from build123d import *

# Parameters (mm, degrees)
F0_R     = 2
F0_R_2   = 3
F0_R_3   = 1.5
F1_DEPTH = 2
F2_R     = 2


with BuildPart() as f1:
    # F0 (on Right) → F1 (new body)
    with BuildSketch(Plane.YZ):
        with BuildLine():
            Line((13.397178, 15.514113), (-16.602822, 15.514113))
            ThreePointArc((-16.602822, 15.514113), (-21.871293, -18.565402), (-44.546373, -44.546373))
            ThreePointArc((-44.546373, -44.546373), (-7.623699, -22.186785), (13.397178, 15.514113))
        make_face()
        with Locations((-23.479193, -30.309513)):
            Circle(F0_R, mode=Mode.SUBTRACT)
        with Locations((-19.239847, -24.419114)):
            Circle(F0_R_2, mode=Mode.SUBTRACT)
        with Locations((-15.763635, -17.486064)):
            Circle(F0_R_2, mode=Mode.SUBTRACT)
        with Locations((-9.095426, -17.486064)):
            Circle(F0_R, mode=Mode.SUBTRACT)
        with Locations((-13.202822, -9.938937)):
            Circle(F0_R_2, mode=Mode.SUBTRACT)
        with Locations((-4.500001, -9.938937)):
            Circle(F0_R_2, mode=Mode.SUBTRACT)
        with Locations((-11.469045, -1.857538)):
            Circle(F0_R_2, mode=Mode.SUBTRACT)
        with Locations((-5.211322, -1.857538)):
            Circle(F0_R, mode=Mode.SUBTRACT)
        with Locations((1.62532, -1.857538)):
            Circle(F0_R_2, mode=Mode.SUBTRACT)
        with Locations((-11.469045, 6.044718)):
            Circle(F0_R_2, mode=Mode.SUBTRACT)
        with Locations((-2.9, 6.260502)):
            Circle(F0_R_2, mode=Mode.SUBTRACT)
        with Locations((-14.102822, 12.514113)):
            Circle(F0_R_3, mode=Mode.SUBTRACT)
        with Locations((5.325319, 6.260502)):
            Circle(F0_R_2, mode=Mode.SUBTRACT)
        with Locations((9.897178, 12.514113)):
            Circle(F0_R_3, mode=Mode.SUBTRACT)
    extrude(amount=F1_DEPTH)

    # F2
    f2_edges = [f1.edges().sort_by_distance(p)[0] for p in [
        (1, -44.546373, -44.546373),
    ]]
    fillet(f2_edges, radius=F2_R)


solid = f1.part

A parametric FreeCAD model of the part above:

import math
import FreeCAD as App
import Part
import Sketcher

V = App.Vector
Q = App.Units.Quantity


def edges_at(feature, points):
    """Names of the edges that pass closest to the given points."""
    edges = feature.Shape.Edges
    near = lambda p: min(range(len(edges)), key=lambda i: edges[i].distToShape(Part.Vertex(*p))[0])
    return sorted({f"Edge{near(p) + 1}" for p in points})

doc = App.newDocument("Part")
params = doc.addObject("Spreadsheet::Sheet", "Params")
for row, (alias, value) in enumerate([
    ("sketch1_diameter", "4 mm"),
    ("sketch1_diameter2", "6 mm"),
    ("sketch1_diameter3", "3 mm"),
    ("sketch1_width", "30 mm"),
    ("pad1_length", "2 mm"),
    ("fillet_radius", "2 mm"),
], start=1):
    params.set(f"A{row}", alias)
    params.set(f"B{row}", "=" + value)
    params.setAlias(f"B{row}", alias)

body = doc.addObject("PartDesign::Body", "Body")

sketch1 = doc.addObject("Sketcher::SketchObject", "Sketch")
body.addObject(sketch1)
sketch1.AttachmentSupport = (doc.YZ_Plane, [""])
sketch1.MapMode = "FlatFace"
sketch1.addGeometry([
    Part.LineSegment(V(13.397178, 15.514113, 0), V(-16.602822, 15.514113, 0)),
    Part.ArcOfCircle(Part.Circle(V(-78.031743, 7.563631, 0), V(0, 0, 1), 61.941283), math.radians(-57.275603), math.radians(7.374553)),
    Part.ArcOfCircle(Part.Circle(V(-68.310696, 36.361194, 0), V(0, 0, 1), 84.325426), math.radians(-73.631332), math.radians(-14.313172)),
    Part.Circle(V(-23.479193, -30.309513, 0), V(0, 0, 1), 2),
    Part.Circle(V(-19.239847, -24.419114, 0), V(0, 0, 1), 3),
    Part.Circle(V(-15.763635, -17.486064, 0), V(0, 0, 1), 3),
    Part.Circle(V(-9.095426, -17.486064, 0), V(0, 0, 1), 2),
    Part.Circle(V(-13.202822, -9.938937, 0), V(0, 0, 1), 3),
    Part.Circle(V(-4.500001, -9.938937, 0), V(0, 0, 1), 3),
    Part.Circle(V(-11.469045, -1.857538, 0), V(0, 0, 1), 3),
    Part.Circle(V(-11.469045, 6.044718, 0), V(0, 0, 1), 3),
    Part.Circle(V(-14.102822, 12.514113, 0), V(0, 0, 1), 1.5),
    Part.Circle(V(-5.211322, -1.857538, 0), V(0, 0, 1), 2),
    Part.Circle(V(1.62532, -1.857538, 0), V(0, 0, 1), 3),
    Part.Circle(V(-2.9, 6.260502, 0), V(0, 0, 1), 3),
    Part.Circle(V(5.325319, 6.260502, 0), V(0, 0, 1), 3),
    Part.Circle(V(9.897178, 12.514113, 0), V(0, 0, 1), 1.5),
], False)
sketch1.addConstraint([
    Sketcher.Constraint("Coincident", 0, 2, 1, 2),
    Sketcher.Constraint("Coincident", 1, 1, 2, 1),
    Sketcher.Constraint("Coincident", 2, 2, 0, 1),
    Sketcher.Constraint("Horizontal", 0),
    Sketcher.Constraint("Equal", 4, 5),
    Sketcher.Constraint("Equal", 3, 6),
    Sketcher.Constraint("Equal", 5, 7),
    Sketcher.Constraint("Equal", 7, 8),
    Sketcher.Constraint("Equal", 8, 9),
    Sketcher.Constraint("Equal", 9, 10),
    Sketcher.Constraint("Equal", 6, 12),
    Sketcher.Constraint("Equal", 10, 13),
    Sketcher.Constraint("Equal", 13, 14),
    Sketcher.Constraint("Equal", 14, 15),
    Sketcher.Constraint("Equal", 11, 16),
    Sketcher.Constraint("Horizontal", 5, 3, 6, 3),
    Sketcher.Constraint("Horizontal", 7, 3, 8, 3),
    Sketcher.Constraint("Horizontal", 9, 3, 12, 3),
    Sketcher.Constraint("Horizontal", 12, 3, 13, 3),
    Sketcher.Constraint("Horizontal", 14, 3, 15, 3),
    Sketcher.Constraint("Horizontal", 11, 3, 16, 3),
    Sketcher.Constraint("Vertical", 9, 3, 10, 3),
    Sketcher.Constraint("Diameter", 3, Q("4 mm")),
    Sketcher.Constraint("Diameter", 4, Q("6 mm")),
    Sketcher.Constraint("Diameter", 11, Q("3 mm")),
    Sketcher.Constraint("DistanceX", 0, 2, 0, 1, Q("30 mm")),
    Sketcher.Constraint("DistanceY", 11, 3, 0, 2, Q("3 mm")),
    Sketcher.Constraint("DistanceX", 8, 3, -1, 1, Q("4.500001 mm")),
    Sketcher.Constraint("DistanceX", 14, 3, -1, 1, Q("2.9 mm")),
    Sketcher.Constraint("DistanceX", 11, 3, 7, 3, Q("0.9 mm")),
    Sketcher.Constraint("DistanceX", 13, 3, 15, 3, Q("3.699999 mm")),
    Sketcher.Constraint("DistanceX", 0, 2, 11, 3, Q("2.5 mm")),
    Sketcher.Constraint("DistanceX", 16, 3, 2, 2, Q("3.5 mm")),
    Sketcher.Constraint("Radius", 1, Q("61.941283 mm")),
    Sketcher.Constraint("Radius", 2, Q("84.325426 mm")),
    Sketcher.Constraint("DistanceY", -1, 1, 14, 3, Q("6.260502 mm")),
    Sketcher.Constraint("DistanceY", 3, 3, 4, 3, Q("5.890399 mm")),
    Sketcher.Constraint("DistanceY", 7, 3, 9, 3, Q("8.081399 mm")),
    Sketcher.Constraint("DistanceX", 7, 3, 12, 3, Q("7.9915 mm")),
    Sketcher.Constraint("DistanceY", -1, 1, 1, 3, Q("7.563631 mm")),
    Sketcher.Constraint("DistanceX", -1, 1, 13, 3, Q("1.62532 mm")),
    Sketcher.Constraint("DistanceX", 0, 2, -1, 1, Q("16.602822 mm")),
    Sketcher.Constraint("DistanceX", 1, 3, 3, 3, Q("54.55255 mm")),
    Sketcher.Constraint("DistanceX", 2, 3, 4, 3, Q("49.070849 mm")),
    Sketcher.Constraint("DistanceY", 4, 3, 2, 3, Q("60.780308 mm")),
    Sketcher.Constraint("DistanceY", 4, 3, 5, 3, Q("6.93305 mm")),
    Sketcher.Constraint("DistanceX", 1, 3, 5, 3, Q("62.268108 mm")),
    Sketcher.Constraint("DistanceX", 2, 3, 5, 3, Q("52.547061 mm")),
    Sketcher.Constraint("DistanceX", 5, 3, 6, 3, Q("6.668209 mm")),
    Sketcher.Constraint("DistanceX", 3, 3, 7, 3, Q("10.276371 mm")),
    Sketcher.Constraint("DistanceX", 9, 3, 6, 3, Q("2.373619 mm")),
    Sketcher.Constraint("DistanceY", 6, 3, 10, 3, Q("23.530782 mm")),
    Sketcher.Constraint("DistanceY", 9, 3, 11, 3, Q("14.371651 mm")),
])
sketch1.setExpression("Constraints[22]", "Params.sketch1_diameter")
sketch1.setExpression("Constraints[23]", "Params.sketch1_diameter2")
sketch1.setExpression("Constraints[24]", "Params.sketch1_diameter3")
sketch1.setExpression("Constraints[25]", "Params.sketch1_width")
pad1 = doc.addObject("PartDesign::Pad", "Pad")
body.addObject(pad1)
pad1.Profile = sketch1
pad1.setExpression("Length", "Params.pad1_length")
doc.recompute()

fillet = doc.addObject("PartDesign::Fillet", "Fillet")
body.addObject(fillet)
fillet.Base = (pad1, edges_at(pad1, [(1, -44.546, -44.546)]))
fillet.setExpression("Radius", "Params.fillet_radius")

doc.recompute()
